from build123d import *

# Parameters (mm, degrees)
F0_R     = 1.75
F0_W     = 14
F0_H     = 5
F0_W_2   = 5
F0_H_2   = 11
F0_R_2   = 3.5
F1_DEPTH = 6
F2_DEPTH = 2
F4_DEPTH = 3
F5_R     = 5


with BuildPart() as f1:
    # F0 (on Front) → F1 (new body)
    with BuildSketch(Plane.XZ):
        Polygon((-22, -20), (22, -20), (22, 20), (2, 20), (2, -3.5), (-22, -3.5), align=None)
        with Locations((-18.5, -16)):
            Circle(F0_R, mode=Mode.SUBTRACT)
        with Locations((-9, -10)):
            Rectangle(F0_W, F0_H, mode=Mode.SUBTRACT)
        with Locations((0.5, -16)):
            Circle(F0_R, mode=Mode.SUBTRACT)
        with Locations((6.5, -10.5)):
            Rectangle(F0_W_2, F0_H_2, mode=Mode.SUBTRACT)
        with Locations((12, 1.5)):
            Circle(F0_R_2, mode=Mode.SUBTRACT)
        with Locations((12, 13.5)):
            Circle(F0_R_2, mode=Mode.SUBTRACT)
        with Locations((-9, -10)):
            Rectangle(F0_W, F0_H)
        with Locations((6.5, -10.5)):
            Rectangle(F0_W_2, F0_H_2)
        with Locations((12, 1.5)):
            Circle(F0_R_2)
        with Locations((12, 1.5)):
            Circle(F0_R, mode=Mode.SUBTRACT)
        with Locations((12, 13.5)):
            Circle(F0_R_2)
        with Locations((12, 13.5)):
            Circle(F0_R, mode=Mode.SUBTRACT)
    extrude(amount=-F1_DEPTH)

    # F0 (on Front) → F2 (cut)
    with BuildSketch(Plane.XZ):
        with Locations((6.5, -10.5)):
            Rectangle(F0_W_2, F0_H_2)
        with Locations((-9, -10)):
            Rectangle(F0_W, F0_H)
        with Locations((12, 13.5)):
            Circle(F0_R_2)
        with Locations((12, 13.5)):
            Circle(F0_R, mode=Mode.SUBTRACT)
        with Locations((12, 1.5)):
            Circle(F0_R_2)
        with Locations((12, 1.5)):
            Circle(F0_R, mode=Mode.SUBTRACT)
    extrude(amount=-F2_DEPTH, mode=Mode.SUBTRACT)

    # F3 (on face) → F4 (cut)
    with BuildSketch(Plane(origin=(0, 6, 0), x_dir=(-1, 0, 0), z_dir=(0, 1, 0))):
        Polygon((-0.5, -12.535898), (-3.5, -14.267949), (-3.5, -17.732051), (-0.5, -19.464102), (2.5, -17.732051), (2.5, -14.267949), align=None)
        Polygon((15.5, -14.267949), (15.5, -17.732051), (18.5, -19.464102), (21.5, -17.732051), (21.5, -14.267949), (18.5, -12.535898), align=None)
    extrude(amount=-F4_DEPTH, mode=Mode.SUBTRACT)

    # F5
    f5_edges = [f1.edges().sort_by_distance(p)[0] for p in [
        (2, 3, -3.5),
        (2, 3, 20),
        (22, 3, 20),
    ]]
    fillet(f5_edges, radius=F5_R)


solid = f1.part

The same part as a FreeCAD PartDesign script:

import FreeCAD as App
import Part
import Sketcher
Q = App.Units.Quantity


def edges_at(feature, points):
    """Names of the edges that pass closest to the given points."""
    edges = feature.Shape.Edges
    near = lambda p: min(range(len(edges)), key=lambda i: edges[i].distToShape(Part.Vertex(*p))[0])
    return sorted({f"Edge{near(p) + 1}" for p in points})

doc = App.newDocument("Part")
body = doc.addObject("PartDesign::Body", "Body")

# Sketch on XZ plane
sketch1 = body.newObject("Sketcher::SketchObject", "Sketch")
sketch1.AttachmentSupport = (doc.getObject("XZ_Plane"), [""])
sketch1.MapMode = "FlatFace"
sketch1.addGeometry([
    Part.LineSegment(App.Vector(-22, -20, 0), App.Vector(22, -20, 0)),  # 0
    Part.LineSegment(App.Vector(22, -20, 0), App.Vector(22, 20, 0)),  # 1
    Part.LineSegment(App.Vector(22, 20, 0), App.Vector(2, 20, 0)),  # 2
    Part.LineSegment(App.Vector(2, 20, 0), App.Vector(2, -3.5, 0)),  # 3
    Part.LineSegment(App.Vector(2, -3.5, 0), App.Vector(-22, -3.5, 0)),  # 4
    Part.LineSegment(App.Vector(-22, -3.5, 0), App.Vector(-22, -20, 0)),  # 5
    Part.Circle(App.Vector(-18.5, -16, 0), App.Vector(0, 0, 1), 1.75),  # 6
    Part.Circle(App.Vector(0.5, -16, 0), App.Vector(0, 0, 1), 1.75),  # 7
    Part.Circle(App.Vector(12, 1.5, 0), App.Vector(0, 0, 1), 1.75),  # 8
    Part.Circle(App.Vector(12, 13.5, 0), App.Vector(0, 0, 1), 1.75),  # 9
], False)
sketch1.addConstraint([
    Sketcher.Constraint("Coincident", 0, 2, 1, 1),
    Sketcher.Constraint("Coincident", 1, 2, 2, 1),
    Sketcher.Constraint("Coincident", 2, 2, 3, 1),
    Sketcher.Constraint("Coincident", 3, 2, 4, 1),
    Sketcher.Constraint("Coincident", 4, 2, 5, 1),
    Sketcher.Constraint("Coincident", 5, 2, 0, 1),
    Sketcher.Constraint("Horizontal", 0),
    Sketcher.Constraint("Vertical", 1),
    Sketcher.Constraint("Horizontal", 2),
    Sketcher.Constraint("Vertical", 3),
    Sketcher.Constraint("Horizontal", 4),
    Sketcher.Constraint("Vertical", 5),
    Sketcher.Constraint("Equal", 6, 7),
    Sketcher.Constraint("Equal", 7, 8),
    Sketcher.Constraint("Equal", 8, 9),
    Sketcher.Constraint("Symmetric", 1, 2, 5, 2, -1, 1),
    Sketcher.Constraint("Horizontal", 6, 3, 7, 3),
    Sketcher.Constraint("Vertical", 8, 3, 9, 3),
    Sketcher.Constraint("Diameter", 6, Q("3.5 mm")),
    Sketcher.Constraint("DistanceX", 0, 1, 0, 2, Q("44 mm")),
    Sketcher.Constraint("DistanceX", 2, 2, 2, 1, Q("20 mm")),
    Sketcher.Constraint("DistanceY", 1, 1, 1, 2, Q("40 mm")),
    Sketcher.Constraint("DistanceY", 3, 2, 3, 1, Q("23.5 mm")),
    Sketcher.Constraint("DistanceY", 6, 3, -1, 1, Q("16 mm")),
    Sketcher.Constraint("DistanceX", -1, 1, 8, 3, Q("12 mm")),
    Sketcher.Constraint("DistanceX", 6, 3, 7, 3, Q("19 mm")),
    Sketcher.Constraint("DistanceY", 8, 3, 9, 3, Q("12 mm")),
    Sketcher.Constraint("DistanceY", 3, 2, 8, 3, Q("5 mm")),
    Sketcher.Constraint("DistanceX", 6, 3, -1, 1, Q("18.5 mm")),
])
pad1 = body.newObject("PartDesign::Pad", "Pad")
pad1.Profile = sketch1
pad1.Length = 6
pad1.Reversed = True

# Sketch on XZ plane
sketch2 = body.newObject("Sketcher::SketchObject", "Sketch001")
sketch2.AttachmentSupport = (doc.getObject("XZ_Plane"), [""])
sketch2.MapMode = "FlatFace"
sketch2.addGeometry([
    Part.LineSegment(App.Vector(4, -5, 0), App.Vector(4, -16, 0)),  # 0
    Part.LineSegment(App.Vector(4, -16, 0), App.Vector(9, -16, 0)),  # 1
    Part.LineSegment(App.Vector(9, -16, 0), App.Vector(9, -5, 0)),  # 2
    Part.LineSegment(App.Vector(9, -5, 0), App.Vector(4, -5, 0)),  # 3
    Part.LineSegment(App.Vector(-16, -7.5, 0), App.Vector(-16, -12.5, 0)),  # 4
    Part.LineSegment(App.Vector(-16, -12.5, 0), App.Vector(-2, -12.5, 0)),  # 5
    Part.LineSegment(App.Vector(-2, -12.5, 0), App.Vector(-2, -7.5, 0)),  # 6
    Part.LineSegment(App.Vector(-2, -7.5, 0), App.Vector(-16, -7.5, 0)),  # 7
    Part.Circle(App.Vector(12, 13.5, 0), App.Vector(0, 0, 1), 3.5),  # 8
    Part.Circle(App.Vector(12, 13.5, 0), App.Vector(0, 0, 1), 1.75),  # 9
    Part.Circle(App.Vector(12, 1.5, 0), App.Vector(0, 0, 1), 3.5),  # 10
    Part.Circle(App.Vector(12, 1.5, 0), App.Vector(0, 0, 1), 1.75),  # 11
], False)
sketch2.addConstraint([
    Sketcher.Constraint("Coincident", 0, 2, 1, 1),
    Sketcher.Constraint("Coincident", 1, 2, 2, 1),
    Sketcher.Constraint("Coincident", 2, 2, 3, 1),
    Sketcher.Constraint("Coincident", 3, 2, 0, 1),
    Sketcher.Constraint("Coincident", 4, 2, 5, 1),
    Sketcher.Constraint("Coincident", 5, 2, 6, 1),
    Sketcher.Constraint("Coincident", 6, 2, 7, 1),
    Sketcher.Constraint("Coincident", 7, 2, 4, 1),
    Sketcher.Constraint("Vertical", 0),
    Sketcher.Constraint("Horizontal", 1),
    Sketcher.Constraint("Vertical", 2),
    Sketcher.Constraint("Horizontal", 3),
    Sketcher.Constraint("Vertical", 4),
    Sketcher.Constraint("Horizontal", 5),
    Sketcher.Constraint("Vertical", 6),
    Sketcher.Constraint("Horizontal", 7),
    Sketcher.Constraint("Coincident", 9, 3, 8, 3),
    Sketcher.Constraint("Coincident", 11, 3, 10, 3),
    Sketcher.Constraint("Equal", 8, 10),
    Sketcher.Constraint("Equal", 9, 11),
    Sketcher.Constraint("Vertical", 9, 3, 10, 3),
    Sketcher.Constraint("Equal", 3, 4),
    Sketcher.Constraint("Diameter", 8, Q("7 mm")),
    Sketcher.Constraint("Diameter", 9, Q("3.5 mm")),
    Sketcher.Constraint("DistanceX", 1, 1, 1, 2, Q("5 mm")),
    Sketcher.Constraint("DistanceX", 5, 1, 5, 2, Q("14 mm")),
    Sketcher.Constraint("DistanceY", 0, 2, 0, 1, Q("11 mm")),
    Sketcher.Constraint("DistanceX", -1, 1, 8, 3, Q("12 mm")),
    Sketcher.Constraint("DistanceX", -1, 1, 0, 2, Q("4 mm")),
    Sketcher.Constraint("DistanceY", 0, 2, -1, 1, Q("16 mm")),
    Sketcher.Constraint("DistanceX", 4, 2, -1, 1, Q("16 mm")),
    Sketcher.Constraint("DistanceY", 10, 3, 8, 3, Q("12 mm")),
    Sketcher.Constraint("DistanceY", 4, 2, 10, 3, Q("14 mm")),
    Sketcher.Constraint("DistanceY", -1, 1, 8, 3, Q("13.5 mm")),
])
pocket1 = body.newObject("PartDesign::Pocket", "Pocket")
pocket1.Profile = sketch2
pocket1.Length = 2

# Sketch on XZ plane
sketch3 = body.newObject("Sketcher::SketchObject", "Sketch002")
sketch3.AttachmentSupport = (doc.getObject("XZ_Plane"), [""])
sketch3.MapMode = "FlatFace"
sketch3.AttachmentOffset = App.Placement(App.Vector(0, 0, -6), App.Rotation())
sketch3.addGeometry([
    Part.LineSegment(App.Vector(0.5, -12.535898, 0), App.Vector(3.5, -14.267949, 0)),  # 0
    Part.LineSegment(App.Vector(3.5, -14.267949, 0), App.Vector(3.5, -17.732051, 0)),  # 1
    Part.LineSegment(App.Vector(3.5, -17.732051, 0), App.Vector(0.5, -19.464102, 0)),  # 2
    Part.LineSegment(App.Vector(0.5, -19.464102, 0), App.Vector(-2.5, -17.732051, 0)),  # 3
    Part.LineSegment(App.Vector(-2.5, -17.732051, 0), App.Vector(-2.5, -14.267949, 0)),  # 4
    Part.LineSegment(App.Vector(-2.5, -14.267949, 0), App.Vector(0.5, -12.535898, 0)),  # 5
    Part.LineSegment(App.Vector(-15.5, -14.267949, 0), App.Vector(-15.5, -17.732051, 0)),  # 6
    Part.LineSegment(App.Vector(-15.5, -17.732051, 0), App.Vector(-18.5, -19.464102, 0)),  # 7
    Part.LineSegment(App.Vector(-18.5, -19.464102, 0), App.Vector(-21.5, -17.732051, 0)),  # 8
    Part.LineSegment(App.Vector(-21.5, -17.732051, 0), App.Vector(-21.5, -14.267949, 0)),  # 9
    Part.LineSegment(App.Vector(-21.5, -14.267949, 0), App.Vector(-18.5, -12.535898, 0)),  # 10
    Part.LineSegment(App.Vector(-18.5, -12.535898, 0), App.Vector(-15.5, -14.267949, 0)),  # 11
], False)
sketch3.addConstraint([
    Sketcher.Constraint("Coincident", 0, 2, 1, 1),
    Sketcher.Constraint("Coincident", 1, 2, 2, 1),
    Sketcher.Constraint("Coincident", 2, 2, 3, 1),
    Sketcher.Constraint("Coincident", 3, 2, 4, 1),
    Sketcher.Constraint("Coincident", 4, 2, 5, 1),
    Sketcher.Constraint("Coincident", 5, 2, 0, 1),
    Sketcher.Constraint("Coincident", 6, 2, 7, 1),
    Sketcher.Constraint("Coincident", 7, 2, 8, 1),
    Sketcher.Constraint("Coincident", 8, 2, 9, 1),
    Sketcher.Constraint("Coincident", 9, 2, 10, 1),
    Sketcher.Constraint("Coincident", 10, 2, 11, 1),
    Sketcher.Constraint("Coincident", 11, 2, 6, 1),
    Sketcher.Constraint("Vertical", 1),
    Sketcher.Constraint("Vertical", 4),
    Sketcher.Constraint("Vertical", 6),
    Sketcher.Constraint("Vertical", 9),
    Sketcher.Constraint("Parallel", 0, 3),
    Sketcher.Constraint("Parallel", 2, 5),
    Sketcher.Constraint("Parallel", 5, 7),
    Sketcher.Constraint("Parallel", 3, 8),
    Sketcher.Constraint("Parallel", 7, 10),
    Sketcher.Constraint("Parallel", 8, 11),
    Sketcher.Constraint("Horizontal", 1, 2, 3, 2),
    Sketcher.Constraint("Horizontal", 0, 2, 4, 2),
    Sketcher.Constraint("Horizontal", 3, 2, 6, 2),
    Sketcher.Constraint("Horizontal", 2, 2, 7, 2),
    Sketcher.Constraint("Horizontal", 6, 2, 8, 2),
    Sketcher.Constraint("Horizontal", 4, 2, 9, 2),
    Sketcher.Constraint("Horizontal", 5, 2, 10, 2),
    Sketcher.Constraint("Vertical", 2, 2, 5, 2),
    Sketcher.Constraint("Angle", 0, Q("-30.000003 deg")),
    Sketcher.Constraint("DistanceX", 2, 2, 1, 2, Q("3 mm")),
    Sketcher.Constraint("DistanceX", 6, 2, 3, 2, Q("13 mm")),
    Sketcher.Constraint("DistanceX", -1, 1, 0, 2, Q("3.5 mm")),
    Sketcher.Constraint("DistanceY", 1, 2, 1, 1, Q("3.464102 mm")),
    Sketcher.Constraint("DistanceY", 0, 2, -1, 1, Q("14.267949 mm")),
])
pocket2 = body.newObject("PartDesign::Pocket", "Pocket001")
pocket2.Profile = sketch3
pocket2.Length = 3
pocket2.Reversed = True
doc.recompute()

fillet = body.newObject("PartDesign::Fillet", "Fillet")
fillet.Base = (pocket2, edges_at(pocket2, [(2, 3, -3.5), (2, 3, 20), (22, 3, 20)]))
fillet.Radius = 5

doc.recompute()
